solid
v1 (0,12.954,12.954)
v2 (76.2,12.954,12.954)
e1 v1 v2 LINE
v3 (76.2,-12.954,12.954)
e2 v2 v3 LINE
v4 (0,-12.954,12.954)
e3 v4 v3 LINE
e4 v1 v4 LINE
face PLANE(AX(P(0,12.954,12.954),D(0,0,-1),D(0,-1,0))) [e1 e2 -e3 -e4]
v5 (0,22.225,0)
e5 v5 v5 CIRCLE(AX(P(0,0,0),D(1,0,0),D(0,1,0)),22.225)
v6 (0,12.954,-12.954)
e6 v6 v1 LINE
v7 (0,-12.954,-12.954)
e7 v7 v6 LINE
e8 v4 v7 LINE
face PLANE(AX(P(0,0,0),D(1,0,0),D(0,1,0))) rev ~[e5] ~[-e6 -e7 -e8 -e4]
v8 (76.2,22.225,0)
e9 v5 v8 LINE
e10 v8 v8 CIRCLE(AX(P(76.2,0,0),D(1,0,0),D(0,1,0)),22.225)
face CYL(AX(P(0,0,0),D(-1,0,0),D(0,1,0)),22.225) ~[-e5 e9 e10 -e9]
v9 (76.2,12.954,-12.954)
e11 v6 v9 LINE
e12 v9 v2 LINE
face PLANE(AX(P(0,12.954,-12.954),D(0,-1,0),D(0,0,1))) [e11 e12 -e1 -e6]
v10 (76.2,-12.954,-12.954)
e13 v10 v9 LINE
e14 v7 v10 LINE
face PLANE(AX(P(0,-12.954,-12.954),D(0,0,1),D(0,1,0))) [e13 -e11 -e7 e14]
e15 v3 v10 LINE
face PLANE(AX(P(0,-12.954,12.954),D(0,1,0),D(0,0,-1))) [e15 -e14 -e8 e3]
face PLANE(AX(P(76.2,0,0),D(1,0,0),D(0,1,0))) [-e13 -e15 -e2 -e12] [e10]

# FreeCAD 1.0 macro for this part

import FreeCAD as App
import Part
import Sketcher

V = App.Vector
Q = App.Units.Quantity


def add_polygon(sketch, points):
    """Adds a closed chain of lines whose ends are joined by coincident constraints."""
    first, n = sketch.GeometryCount, len(points)
    for a, b in zip(points, points[1:] + points[:1]):
        sketch.addGeometry(Part.LineSegment(App.Vector(*a, 0), App.Vector(*b, 0)), False)
    for i in range(n):
        sketch.addConstraint(Sketcher.Constraint("Coincident", first + i, 2, first + (i + 1) % n, 1))

doc = App.newDocument("Part")
body = doc.addObject("PartDesign::Body", "Body")

# Sketch on YZ plane
sketch1 = body.newObject("Sketcher::SketchObject", "Sketch")
sketch1.AttachmentSupport = (doc.getObject("YZ_Plane"), [""])
sketch1.MapMode = "FlatFace"
sketch1.addGeometry(Part.Circle(V(0, 0, 0), V(0, 0, 1), 22.225), False)  # 0
add_polygon(sketch1, [(-12.954, 12.954), (12.954, 12.954), (12.954, -12.954), (-12.954, -12.954)])  # lines 1-4
sketch1.addConstraint([
    Sketcher.Constraint("Horizontal", 1),
    Sketcher.Constraint("Vertical", 2),
    Sketcher.Constraint("Horizontal", 3),
    Sketcher.Constraint("Vertical", 4),
    Sketcher.Constraint("Coincident", 0, 3, -1, 1),
    Sketcher.Constraint("Symmetric", 1, 2, 3, 2, -1, 1),
    Sketcher.Constraint("Equal", 3, 2),
    Sketcher.Constraint("Diameter", 0, Q("1.75 in")),
    Sketcher.Constraint("DistanceX", 1, 1, 1, 2, Q("1.02 in")),
])
pad1 = body.newObject("PartDesign::Pad", "Pad")
pad1.Profile = sketch1
pad1.Length = Q("3 in")

doc.recompute()
